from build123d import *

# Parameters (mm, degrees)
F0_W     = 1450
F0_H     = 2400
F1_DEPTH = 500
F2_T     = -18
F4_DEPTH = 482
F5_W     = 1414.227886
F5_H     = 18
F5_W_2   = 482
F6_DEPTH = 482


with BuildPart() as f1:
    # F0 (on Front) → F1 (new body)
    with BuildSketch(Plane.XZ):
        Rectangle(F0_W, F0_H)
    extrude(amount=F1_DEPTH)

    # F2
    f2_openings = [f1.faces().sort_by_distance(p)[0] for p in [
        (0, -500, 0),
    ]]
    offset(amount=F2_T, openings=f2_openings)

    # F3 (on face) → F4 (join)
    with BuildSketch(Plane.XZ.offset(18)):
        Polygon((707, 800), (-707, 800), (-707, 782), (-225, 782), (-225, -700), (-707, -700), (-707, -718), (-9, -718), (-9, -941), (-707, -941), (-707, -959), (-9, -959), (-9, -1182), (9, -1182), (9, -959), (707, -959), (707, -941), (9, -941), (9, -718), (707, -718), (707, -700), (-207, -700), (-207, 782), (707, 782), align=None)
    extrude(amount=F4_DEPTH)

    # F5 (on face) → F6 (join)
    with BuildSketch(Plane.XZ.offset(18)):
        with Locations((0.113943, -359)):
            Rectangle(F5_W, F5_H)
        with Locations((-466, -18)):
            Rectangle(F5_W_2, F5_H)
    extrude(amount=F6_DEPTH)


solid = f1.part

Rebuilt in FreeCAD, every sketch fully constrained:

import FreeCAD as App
import Part
import Sketcher
from FreeCAD import Vector
Q = App.Units.Quantity


def faces_at(feature, points):
    """Names of the faces that lie closest to the given points."""
    faces = feature.Shape.Faces
    near = lambda p: min(range(len(faces)), key=lambda i: faces[i].distToShape(Part.Vertex(*p))[0])
    return sorted({f"Face{near(p) + 1}" for p in points})

doc = App.newDocument("Part")
body = doc.addObject("PartDesign::Body", "Body")

# Sketch on XZ plane
sketch1 = body.newObject("Sketcher::SketchObject", "Sketch")
sketch1.AttachmentSupport = (doc.getObject("XZ_Plane"), [""])
sketch1.MapMode = "FlatFace"
sketch1.addGeometry(Part.LineSegment(Vector(-725, 1200, 0), Vector(-725, -1200, 0)), False)
sketch1.addGeometry(Part.LineSegment(Vector(-725, -1200, 0), Vector(725, -1200, 0)), False)
sketch1.addGeometry(Part.LineSegment(Vector(725, -1200, 0), Vector(725, 1200, 0)), False)
sketch1.addGeometry(Part.LineSegment(Vector(725, 1200, 0), Vector(-725, 1200, 0)), False)
sketch1.addConstraint(Sketcher.Constraint("Coincident", 0, 2, 1, 1))
sketch1.addConstraint(Sketcher.Constraint("Coincident", 1, 2, 2, 1))
sketch1.addConstraint(Sketcher.Constraint("Coincident", 2, 2, 3, 1))
sketch1.addConstraint(Sketcher.Constraint("Coincident", 3, 2, 0, 1))
sketch1.addConstraint(Sketcher.Constraint("Vertical", 0))
sketch1.addConstraint(Sketcher.Constraint("Horizontal", 1))
sketch1.addConstraint(Sketcher.Constraint("Vertical", 2))
sketch1.addConstraint(Sketcher.Constraint("Horizontal", 3))
sketch1.addConstraint(Sketcher.Constraint("Symmetric", 0, 2, 2, 2, -1, 1))
sketch1.addConstraint(Sketcher.Constraint("DistanceX", 1, 1, 1, 2, Q("1450 mm")))
sketch1.addConstraint(Sketcher.Constraint("DistanceY", 0, 2, 0, 1, Q("2400 mm")))
pad1 = body.newObject("PartDesign::Pad", "Pad")
pad1.Profile = sketch1
pad1.Length = 500
doc.recompute()

thickness = body.newObject("PartDesign::Thickness", "Thickness")
thickness.Base = (pad1, faces_at(pad1, [(0, -500, 0)]))
thickness.Value = 18
thickness.Reversed = True
thickness.Join = "Arc"

# Sketch on XZ plane
sketch2 = body.newObject("Sketcher::SketchObject", "Sketch001")
sketch2.AttachmentSupport = (doc.getObject("XZ_Plane"), [""])
sketch2.MapMode = "FlatFace"
sketch2.AttachmentOffset = App.Placement(Vector(0, 0, 18), App.Rotation())
sketch2.addGeometry(Part.LineSegment(Vector(707, 800, 0), Vector(-707, 800, 0)), False)
sketch2.addGeometry(Part.LineSegment(Vector(-707, 800, 0), Vector(-707, 782, 0)), False)
sketch2.addGeometry(Part.LineSegment(Vector(-707, 782, 0), Vector(-225, 782, 0)), False)
sketch2.addGeometry(Part.LineSegment(Vector(-225, 782, 0), Vector(-225, -700, 0)), False)
sketch2.addGeometry(Part.LineSegment(Vector(-225, -700, 0), Vector(-707, -700, 0)), False)
sketch2.addGeometry(Part.LineSegment(Vector(-707, -700, 0), Vector(-707, -718, 0)), False)
sketch2.addGeometry(Part.LineSegment(Vector(-707, -718, 0), Vector(-9, -718, 0)), False)
sketch2.addGeometry(Part.LineSegment(Vector(-9, -718, 0), Vector(-9, -941, 0)), False)
sketch2.addGeometry(Part.LineSegment(Vector(-9, -941, 0), Vector(-707, -941, 0)), False)
sketch2.addGeometry(Part.LineSegment(Vector(-707, -941, 0), Vector(-707, -959, 0)), False)
sketch2.addGeometry(Part.LineSegment(Vector(-707, -959, 0), Vector(-9, -959, 0)), False)
sketch2.addGeometry(Part.LineSegment(Vector(-9, -959, 0), Vector(-9, -1182, 0)), False)
sketch2.addGeometry(Part.LineSegment(Vector(-9, -1182, 0), Vector(9, -1182, 0)), False)
sketch2.addGeometry(Part.LineSegment(Vector(9, -1182, 0), Vector(9, -959, 0)), False)
sketch2.addGeometry(Part.LineSegment(Vector(9, -959, 0), Vector(707, -959, 0)), False)
sketch2.addGeometry(Part.LineSegment(Vector(707, -959, 0), Vector(707, -941, 0)), False)
sketch2.addGeometry(Part.LineSegment(Vector(707, -941, 0), Vector(9, -941, 0)), False)
sketch2.addGeometry(Part.LineSegment(Vector(9, -941, 0), Vector(9, -718, 0)), False)
sketch2.addGeometry(Part.LineSegment(Vector(9, -718, 0), Vector(707, -718, 0)), False)
sketch2.addGeometry(Part.LineSegment(Vector(707, -718, 0), Vector(707, -700, 0)), False)
sketch2.addGeometry(Part.LineSegment(Vector(707, -700, 0), Vector(-207, -700, 0)), False)
sketch2.addGeometry(Part.LineSegment(Vector(-207, -700, 0), Vector(-207, 782, 0)), False)
sketch2.addGeometry(Part.LineSegment(Vector(-207, 782, 0), Vector(707, 782, 0)), False)
sketch2.addGeometry(Part.LineSegment(Vector(707, 782, 0), Vector(707, 800, 0)), False)
sketch2.addConstraint(Sketcher.Constraint("Coincident", 0, 2, 1, 1))
sketch2.addConstraint(Sketcher.Constraint("Coincident", 1, 2, 2, 1))
sketch2.addConstraint(Sketcher.Constraint("Coincident", 2, 2, 3, 1))
sketch2.addConstraint(Sketcher.Constraint("Coincident", 3, 2, 4, 1))
sketch2.addConstraint(Sketcher.Constraint("Coincident", 4, 2, 5, 1))
sketch2.addConstraint(Sketcher.Constraint("Coincident", 5, 2, 6, 1))
sketch2.addConstraint(Sketcher.Constraint("Coincident", 6, 2, 7, 1))
sketch2.addConstraint(Sketcher.Constraint("Coincident", 7, 2, 8, 1))
sketch2.addConstraint(Sketcher.Constraint("Coincident", 8, 2, 9, 1))
sketch2.addConstraint(Sketcher.Constraint("Coincident", 9, 2, 10, 1))
sketch2.addConstraint(Sketcher.Constraint("Coincident", 10, 2, 11, 1))
sketch2.addConstraint(Sketcher.Constraint("Coincident", 11, 2, 12, 1))
sketch2.addConstraint(Sketcher.Constraint("Coincident", 12, 2, 13, 1))
sketch2.addConstraint(Sketcher.Constraint("Coincident", 13, 2, 14, 1))
sketch2.addConstraint(Sketcher.Constraint("Coincident", 14, 2, 15, 1))
sketch2.addConstraint(Sketcher.Constraint("Coincident", 15, 2, 16, 1))
sketch2.addConstraint(Sketcher.Constraint("Coincident", 16, 2, 17, 1))
sketch2.addConstraint(Sketcher.Constraint("Coincident", 17, 2, 18, 1))
sketch2.addConstraint(Sketcher.Constraint("Coincident", 18, 2, 19, 1))
sketch2.addConstraint(Sketcher.Constraint("Coincident", 19, 2, 20, 1))
sketch2.addConstraint(Sketcher.Constraint("Coincident", 20, 2, 21, 1))
sketch2.addConstraint(Sketcher.Constraint("Coincident", 21, 2, 22, 1))
sketch2.addConstraint(Sketcher.Constraint("Coincident", 22, 2, 23, 1))
sketch2.addConstraint(Sketcher.Constraint("Coincident", 23, 2, 0, 1))
sketch2.addConstraint(Sketcher.Constraint("Horizontal", 0))
sketch2.addConstraint(Sketcher.Constraint("Vertical", 1))
sketch2.addConstraint(Sketcher.Constraint("Horizontal", 2))
sketch2.addConstraint(Sketcher.Constraint("Vertical", 3))
sketch2.addConstraint(Sketcher.Constraint("Horizontal", 4))
sketch2.addConstraint(Sketcher.Constraint("Vertical", 5))
sketch2.addConstraint(Sketcher.Constraint("Horizontal", 6))
sketch2.addConstraint(Sketcher.Constraint("Vertical", 7))
sketch2.addConstraint(Sketcher.Constraint("Horizontal", 8))
sketch2.addConstraint(Sketcher.Constraint("Vertical", 9))
sketch2.addConstraint(Sketcher.Constraint("Horizontal", 10))
sketch2.addConstraint(Sketcher.Constraint("Vertical", 11))
sketch2.addConstraint(Sketcher.Constraint("Horizontal", 12))
sketch2.addConstraint(Sketcher.Constraint("Vertical", 13))
sketch2.addConstraint(Sketcher.Constraint("Horizontal", 14))
sketch2.addConstraint(Sketcher.Constraint("Vertical", 15))
sketch2.addConstraint(Sketcher.Constraint("Horizontal", 16))
sketch2.addConstraint(Sketcher.Constraint("Vertical", 17))
sketch2.addConstraint(Sketcher.Constraint("Horizontal", 18))
sketch2.addConstraint(Sketcher.Constraint("Vertical", 19))
sketch2.addConstraint(Sketcher.Constraint("Horizontal", 20))
sketch2.addConstraint(Sketcher.Constraint("Vertical", 21))
sketch2.addConstraint(Sketcher.Constraint("Horizontal", 22))
sketch2.addConstraint(Sketcher.Constraint("Vertical", 23))
sketch2.addConstraint(Sketcher.Constraint("Symmetric", 10, 2, 13, 2, -2))
sketch2.addConstraint(Sketcher.Constraint("Symmetric", 8, 2, 15, 2, -2))
sketch2.addConstraint(Sketcher.Constraint("Symmetric", 6, 2, 17, 2, -2))
sketch2.addConstraint(Sketcher.Constraint("Symmetric", 4, 2, 19, 2, -2))
sketch2.addConstraint(Sketcher.Constraint("Symmetric", 1, 2, 22, 2, -2))
sketch2.addConstraint(Sketcher.Constraint("Vertical", 1, 2, 4, 2))
sketch2.addConstraint(Sketcher.Constraint("Vertical", 5, 2, 8, 2))
sketch2.addConstraint(Sketcher.Constraint("Vertical", 7, 2, 10, 2))
sketch2.addConstraint(Sketcher.Constraint("Equal", 12, 1))
sketch2.addConstraint(Sketcher.Constraint("Equal", 1, 5))
sketch2.addConstraint(Sketcher.Constraint("Equal", 5, 9))
sketch2.addConstraint(Sketcher.Constraint("Equal", 7, 11))
sketch2.addConstraint(Sketcher.Constraint("DistanceX", 0, 2, 0, 1, Q("1414 mm")))
sketch2.addConstraint(Sketcher.Constraint("DistanceX", 2, 1, 2, 2, Q("482 mm")))
sketch2.addConstraint(Sketcher.Constraint("DistanceX", 6, 1, 6, 2, Q("698 mm")))
sketch2.addConstraint(Sketcher.Constraint("DistanceX", 20, 2, 20, 1, Q("914 mm")))
sketch2.addConstraint(Sketcher.Constraint("DistanceY", 3, 2, 3, 1, Q("1482 mm")))
sketch2.addConstraint(Sketcher.Constraint("DistanceY", 7, 2, 7, 1, Q("223 mm")))
sketch2.addConstraint(Sketcher.Constraint("DistanceY", -1, 1, 0, 2, Q("800 mm")))
pad2 = body.newObject("PartDesign::Pad", "Pad001")
pad2.Profile = sketch2
pad2.Length = 482

# Sketch on XZ plane
sketch3 = body.newObject("Sketcher::SketchObject", "Sketch002")
sketch3.AttachmentSupport = (doc.getObject("XZ_Plane"), [""])
sketch3.MapMode = "FlatFace"
sketch3.AttachmentOffset = App.Placement(Vector(0, 0, 18), App.Rotation())
sketch3.addGeometry(Part.LineSegment(Vector(-707, -350, 0), Vector(-707, -368, 0)), False)
sketch3.addGeometry(Part.LineSegment(Vector(-707, -368, 0), Vector(707, -368, 0)), False)
sketch3.addGeometry(Part.LineSegment(Vector(707, -368, 0), Vector(707, -350, 0)), False)
sketch3.addGeometry(Part.LineSegment(Vector(707, -350, 0), Vector(-707, -350, 0)), False)
sketch3.addGeometry(Part.LineSegment(Vector(-707, -9, 0), Vector(-707, -27, 0)), False)
sketch3.addGeometry(Part.LineSegment(Vector(-707, -27, 0), Vector(-225, -27, 0)), False)
sketch3.addGeometry(Part.LineSegment(Vector(-225, -27, 0), Vector(-225, -9, 0)), False)
sketch3.addGeometry(Part.LineSegment(Vector(-225, -9, 0), Vector(-707, -9, 0)), False)
sketch3.addConstraint(Sketcher.Constraint("Coincident", 0, 2, 1, 1))
sketch3.addConstraint(Sketcher.Constraint("Coincident", 1, 2, 2, 1))
sketch3.addConstraint(Sketcher.Constraint("Coincident", 2, 2, 3, 1))
sketch3.addConstraint(Sketcher.Constraint("Coincident", 3, 2, 0, 1))
sketch3.addConstraint(Sketcher.Constraint("Coincident", 4, 2, 5, 1))
sketch3.addConstraint(Sketcher.Constraint("Coincident", 5, 2, 6, 1))
sketch3.addConstraint(Sketcher.Constraint("Coincident", 6, 2, 7, 1))
sketch3.addConstraint(Sketcher.Constraint("Coincident", 7, 2, 4, 1))
sketch3.addConstraint(Sketcher.Constraint("Vertical", 0))
sketch3.addConstraint(Sketcher.Constraint("Horizontal", 1))
sketch3.addConstraint(Sketcher.Constraint("Vertical", 2))
sketch3.addConstraint(Sketcher.Constraint("Horizontal", 3))
sketch3.addConstraint(Sketcher.Constraint("Vertical", 4))
sketch3.addConstraint(Sketcher.Constraint("Horizontal", 5))
sketch3.addConstraint(Sketcher.Constraint("Vertical", 6))
sketch3.addConstraint(Sketcher.Constraint("Horizontal", 7))
sketch3.addConstraint(Sketcher.Constraint("Vertical", 3, 2, 4, 2))
sketch3.addConstraint(Sketcher.Constraint("Equal", 2, 4))
sketch3.addConstraint(Sketcher.Constraint("DistanceX", 5, 1, 5, 2, Q("482 mm")))
sketch3.addConstraint(Sketcher.Constraint("DistanceY", 0, 2, 0, 1, Q("18 mm")))
sketch3.addConstraint(Sketcher.Constraint("DistanceX", 0, 2, -1, 1, Q("707 mm")))
sketch3.addConstraint(Sketcher.Constraint("DistanceY", 0, 2, -1, 1, Q("368 mm")))
sketch3.addConstraint(Sketcher.Constraint("DistanceY", 4, 2, -1, 1, Q("27 mm")))
sketch3.addConstraint(Sketcher.Constraint("DistanceX", 1, 1, 1, 2, Q("1414.227886 mm")))
pad3 = body.newObject("PartDesign::Pad", "Pad002")
pad3.Profile = sketch3
pad3.Length = 482

doc.recompute()
